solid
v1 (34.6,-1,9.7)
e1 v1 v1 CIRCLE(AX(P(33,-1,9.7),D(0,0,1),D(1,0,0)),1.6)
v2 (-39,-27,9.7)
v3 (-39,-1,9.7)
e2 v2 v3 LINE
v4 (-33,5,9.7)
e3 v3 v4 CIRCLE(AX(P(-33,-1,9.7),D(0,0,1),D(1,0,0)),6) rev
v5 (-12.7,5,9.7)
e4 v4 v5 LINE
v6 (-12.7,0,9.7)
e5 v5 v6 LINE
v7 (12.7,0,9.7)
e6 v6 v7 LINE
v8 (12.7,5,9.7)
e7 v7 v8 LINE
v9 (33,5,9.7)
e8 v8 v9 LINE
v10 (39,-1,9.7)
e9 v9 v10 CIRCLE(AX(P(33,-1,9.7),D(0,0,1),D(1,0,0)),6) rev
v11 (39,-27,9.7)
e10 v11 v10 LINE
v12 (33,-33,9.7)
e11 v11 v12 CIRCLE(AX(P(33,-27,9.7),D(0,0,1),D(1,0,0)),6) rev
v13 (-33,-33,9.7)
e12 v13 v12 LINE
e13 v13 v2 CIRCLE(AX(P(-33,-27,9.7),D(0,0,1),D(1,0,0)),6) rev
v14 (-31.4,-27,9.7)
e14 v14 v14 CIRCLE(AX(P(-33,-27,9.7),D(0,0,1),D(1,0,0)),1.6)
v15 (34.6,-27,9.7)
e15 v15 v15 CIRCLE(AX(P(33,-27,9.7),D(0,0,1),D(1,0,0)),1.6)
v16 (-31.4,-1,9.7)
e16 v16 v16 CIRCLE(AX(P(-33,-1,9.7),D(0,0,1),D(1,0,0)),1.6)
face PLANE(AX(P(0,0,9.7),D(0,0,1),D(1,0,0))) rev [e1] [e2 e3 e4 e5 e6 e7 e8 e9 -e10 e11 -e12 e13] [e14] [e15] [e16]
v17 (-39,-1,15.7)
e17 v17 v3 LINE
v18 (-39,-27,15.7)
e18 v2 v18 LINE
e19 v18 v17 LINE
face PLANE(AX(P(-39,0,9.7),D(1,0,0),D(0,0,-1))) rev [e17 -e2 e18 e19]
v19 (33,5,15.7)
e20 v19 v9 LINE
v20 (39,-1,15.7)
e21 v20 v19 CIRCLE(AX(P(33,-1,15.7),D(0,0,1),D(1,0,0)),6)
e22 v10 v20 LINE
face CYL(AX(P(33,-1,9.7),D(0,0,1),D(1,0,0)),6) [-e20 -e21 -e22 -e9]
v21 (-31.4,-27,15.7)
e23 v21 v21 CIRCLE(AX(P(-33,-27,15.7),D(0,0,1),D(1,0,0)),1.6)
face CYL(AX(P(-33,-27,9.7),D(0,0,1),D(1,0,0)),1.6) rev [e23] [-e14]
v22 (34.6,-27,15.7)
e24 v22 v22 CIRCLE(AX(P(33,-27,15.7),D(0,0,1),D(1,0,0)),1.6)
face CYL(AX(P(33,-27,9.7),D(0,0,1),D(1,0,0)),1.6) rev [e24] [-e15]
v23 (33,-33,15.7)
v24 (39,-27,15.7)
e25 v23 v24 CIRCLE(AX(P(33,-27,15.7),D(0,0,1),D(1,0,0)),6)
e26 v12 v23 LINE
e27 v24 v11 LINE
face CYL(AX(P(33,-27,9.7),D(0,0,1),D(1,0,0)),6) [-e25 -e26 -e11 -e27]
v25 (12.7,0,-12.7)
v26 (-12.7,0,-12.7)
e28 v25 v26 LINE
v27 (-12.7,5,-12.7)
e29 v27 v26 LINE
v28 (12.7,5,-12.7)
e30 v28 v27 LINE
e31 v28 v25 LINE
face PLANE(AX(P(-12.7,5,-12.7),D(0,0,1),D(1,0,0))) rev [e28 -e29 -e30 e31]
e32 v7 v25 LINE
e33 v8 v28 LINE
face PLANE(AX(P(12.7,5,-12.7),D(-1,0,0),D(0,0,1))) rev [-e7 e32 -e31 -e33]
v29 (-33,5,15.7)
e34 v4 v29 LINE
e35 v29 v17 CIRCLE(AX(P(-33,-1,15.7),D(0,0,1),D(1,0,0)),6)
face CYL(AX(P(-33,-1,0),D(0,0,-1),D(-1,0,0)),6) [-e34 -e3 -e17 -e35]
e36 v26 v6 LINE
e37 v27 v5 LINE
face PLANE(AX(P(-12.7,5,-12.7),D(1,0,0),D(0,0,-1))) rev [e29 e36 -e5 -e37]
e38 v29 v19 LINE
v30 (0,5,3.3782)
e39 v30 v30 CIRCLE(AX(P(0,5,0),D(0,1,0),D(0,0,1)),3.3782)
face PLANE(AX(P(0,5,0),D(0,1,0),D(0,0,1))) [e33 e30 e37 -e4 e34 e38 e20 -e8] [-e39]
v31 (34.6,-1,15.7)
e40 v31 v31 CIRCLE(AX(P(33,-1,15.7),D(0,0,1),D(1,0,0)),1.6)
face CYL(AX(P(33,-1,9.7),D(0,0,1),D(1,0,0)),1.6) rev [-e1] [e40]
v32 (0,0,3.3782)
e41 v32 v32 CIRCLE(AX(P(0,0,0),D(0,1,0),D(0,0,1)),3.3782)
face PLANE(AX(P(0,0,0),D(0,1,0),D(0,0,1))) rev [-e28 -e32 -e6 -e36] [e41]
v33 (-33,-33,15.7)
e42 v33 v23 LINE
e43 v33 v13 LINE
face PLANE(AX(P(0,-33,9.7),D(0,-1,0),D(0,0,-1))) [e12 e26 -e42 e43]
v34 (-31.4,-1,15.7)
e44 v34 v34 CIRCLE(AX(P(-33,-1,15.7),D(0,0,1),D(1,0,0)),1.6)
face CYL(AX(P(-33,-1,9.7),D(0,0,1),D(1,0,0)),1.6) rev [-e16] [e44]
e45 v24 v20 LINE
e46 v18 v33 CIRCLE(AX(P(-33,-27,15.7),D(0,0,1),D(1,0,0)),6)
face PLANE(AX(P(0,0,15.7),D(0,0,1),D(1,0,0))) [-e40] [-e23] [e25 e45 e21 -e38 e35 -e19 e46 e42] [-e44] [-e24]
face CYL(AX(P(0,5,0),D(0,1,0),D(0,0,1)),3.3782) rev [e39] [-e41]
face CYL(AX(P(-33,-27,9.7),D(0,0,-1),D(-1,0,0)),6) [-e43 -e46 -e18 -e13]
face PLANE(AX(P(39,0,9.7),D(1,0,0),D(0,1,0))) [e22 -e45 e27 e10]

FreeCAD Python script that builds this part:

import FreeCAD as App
import Part
import Sketcher
from FreeCAD import Vector
Q = App.Units.Quantity


def edges_at(feature, points):
    """Names of the edges that pass closest to the given points."""
    edges = feature.Shape.Edges
    near = lambda p: min(range(len(edges)), key=lambda i: edges[i].distToShape(Part.Vertex(*p))[0])
    return sorted({f"Edge{near(p) + 1}" for p in points})

doc = App.newDocument("Part")
body = doc.addObject("PartDesign::Body", "Body")

# Sketch on XZ plane
sketch1 = body.newObject("Sketcher::SketchObject", "Sketch")
sketch1.AttachmentSupport = (doc.getObject("XZ_Plane"), [""])
sketch1.MapMode = "FlatFace"
sketch1.addGeometry(Part.LineSegment(Vector(-13, -13, 0), Vector(-13, 13, 0)), False)
sketch1.addGeometry(Part.LineSegment(Vector(-13, 13, 0), Vector(13, 13, 0)), False)
sketch1.addGeometry(Part.LineSegment(Vector(13, 13, 0), Vector(13, -13, 0)), False)
sketch1.addGeometry(Part.LineSegment(Vector(13, -13, 0), Vector(-13, -13, 0)), False)
sketch1.addConstraint(Sketcher.Constraint("Coincident", 0, 2, 1, 1))
sketch1.addConstraint(Sketcher.Constraint("Coincident", 1, 2, 2, 1))
sketch1.addConstraint(Sketcher.Constraint("Coincident", 2, 2, 3, 1))
sketch1.addConstraint(Sketcher.Constraint("Coincident", 3, 2, 0, 1))
sketch1.addConstraint(Sketcher.Constraint("Vertical", 0))
sketch1.addConstraint(Sketcher.Constraint("Horizontal", 1))
sketch1.addConstraint(Sketcher.Constraint("Vertical", 2))
sketch1.addConstraint(Sketcher.Constraint("Horizontal", 3))
sketch1.addConstraint(Sketcher.Constraint("Symmetric", 0, 2, 2, 2, -1, 1))
sketch1.addConstraint(Sketcher.Constraint("Equal", 3, 0))
sketch1.addConstraint(Sketcher.Constraint("DistanceX", 1, 1, 1, 2, Q("25.4 mm")))
pad1 = body.newObject("PartDesign::Pad", "Pad")
pad1.Profile = sketch1
pad1.Length = 5
pad1.Reversed = True

# Sketch on XZ plane
sketch2 = body.newObject("Sketcher::SketchObject", "Sketch001")
sketch2.AttachmentSupport = (doc.getObject("XZ_Plane"), [""])
sketch2.MapMode = "FlatFace"
sketch2.AttachmentOffset = App.Placement(Vector(0, 0, -5), App.Rotation())
sketch2.addGeometry(Part.Circle(Vector(0, 0, 0), Vector(0, 0, 1), 3.4), False)
sketch2.addConstraint(Sketcher.Constraint("Coincident", 0, 3, -1, 1))
sketch2.addConstraint(Sketcher.Constraint("Diameter", 0, Q("6.7564 mm")))
doc.recompute()
hole = body.newObject("PartDesign::Hole", "Hole")
hole.Profile = sketch2
hole.ThreadType = "None"
hole.Diameter = 6.7564
hole.DepthType = "ThroughAll"
hole.Reversed = True

# Sketch on XY plane
sketch3 = body.newObject("Sketcher::SketchObject", "Sketch002")
sketch3.AttachmentSupport = (doc.getObject("XY_Plane"), [""])
sketch3.MapMode = "FlatFace"
sketch3.AttachmentOffset = App.Placement(Vector(0, 0, 12.7), App.Rotation())
sketch3.addGeometry(Part.LineSegment(Vector(-39, 5, 0), Vector(-39, -33, 0)), False)
sketch3.addGeometry(Part.LineSegment(Vector(-39, -33, 0), Vector(39, -33, 0)), False)
sketch3.addGeometry(Part.LineSegment(Vector(39, -33, 0), Vector(39, 5, 0)), False)
sketch3.addGeometry(Part.LineSegment(Vector(39, 5, 0), Vector(-39, 5, 0)), False)
sketch3.addGeometry(Part.Circle(Vector(-33, -27, 0), Vector(0, 0, 1), 1.6), False)
sketch3.addGeometry(Part.Circle(Vector(33, -27, 0), Vector(0, 0, 1), 1.6), False)
sketch3.addGeometry(Part.Circle(Vector(-33, -1, 0), Vector(0, 0, 1), 1.6), False)
sketch3.addGeometry(Part.Circle(Vector(33, -1, 0), Vector(0, 0, 1), 1.6), False)
sketch3.addConstraint(Sketcher.Constraint("Coincident", 0, 2, 1, 1))
sketch3.addConstraint(Sketcher.Constraint("Coincident", 1, 2, 2, 1))
sketch3.addConstraint(Sketcher.Constraint("Coincident", 2, 2, 3, 1))
sketch3.addConstraint(Sketcher.Constraint("Coincident", 3, 2, 0, 1))
sketch3.addConstraint(Sketcher.Constraint("Vertical", 0))
sketch3.addConstraint(Sketcher.Constraint("Horizontal", 1))
sketch3.addConstraint(Sketcher.Constraint("Vertical", 2))
sketch3.addConstraint(Sketcher.Constraint("Horizontal", 3))
sketch3.addConstraint(Sketcher.Constraint("Equal", 4, 5))
sketch3.addConstraint(Sketcher.Constraint("Equal", 5, 6))
sketch3.addConstraint(Sketcher.Constraint("Equal", 6, 7))
sketch3.addConstraint(Sketcher.Constraint("Symmetric", 4, 3, 5, 3, -2))
sketch3.addConstraint(Sketcher.Constraint("Symmetric", 6, 3, 7, 3, -2))
sketch3.addConstraint(Sketcher.Constraint("Vertical", 4, 3, 6, 3))
sketch3.addConstraint(Sketcher.Constraint("Diameter", 4, Q("3.2 mm")))
sketch3.addConstraint(Sketcher.Constraint("DistanceX", 1, 1, 1, 2, Q("78 mm")))
sketch3.addConstraint(Sketcher.Constraint("DistanceY", 0, 2, 0, 1, Q("38 mm")))
sketch3.addConstraint(Sketcher.Constraint("DistanceX", 4, 3, -1, 1, Q("33 mm")))
sketch3.addConstraint(Sketcher.Constraint("DistanceY", 4, 3, -1, 1, Q("27 mm")))
sketch3.addConstraint(Sketcher.Constraint("DistanceY", 6, 3, -1, 1, Q("1 mm")))
sketch3.addConstraint(Sketcher.Constraint("DistanceX", 0, 2, -1, 1, Q("39 mm")))
sketch3.addConstraint(Sketcher.Constraint("DistanceY", 0, 2, -1, 1, Q("33 mm")))
pad2 = body.newObject("PartDesign::Pad", "Pad001")
pad2.Profile = sketch3
pad2.Length = 6
pad2.Midplane = True
doc.recompute()

fillet = body.newObject("PartDesign::Fillet", "Fillet")
fillet.Base = (pad2, edges_at(pad2, [
    (-39, 5, 12.7),
    (39, 5, 12.7),
    (39, -33, 12.7),
    (-39, -33, 12.7),
]))
fillet.Radius = 6

doc.recompute()
